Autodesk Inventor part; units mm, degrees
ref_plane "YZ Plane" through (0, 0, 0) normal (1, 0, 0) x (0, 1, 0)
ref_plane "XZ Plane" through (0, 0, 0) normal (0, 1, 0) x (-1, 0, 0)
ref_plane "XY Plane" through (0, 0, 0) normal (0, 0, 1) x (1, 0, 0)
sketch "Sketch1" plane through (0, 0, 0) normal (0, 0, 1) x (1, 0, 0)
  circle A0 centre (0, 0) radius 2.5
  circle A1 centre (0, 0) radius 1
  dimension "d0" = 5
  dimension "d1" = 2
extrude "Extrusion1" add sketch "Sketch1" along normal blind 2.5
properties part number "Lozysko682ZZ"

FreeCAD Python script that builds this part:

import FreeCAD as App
import Part
import Sketcher
from FreeCAD import Vector
Q = App.Units.Quantity

doc = App.newDocument("Part")
body = doc.addObject("PartDesign::Body", "Body")

# Sketch on XY plane
sketch1 = body.newObject("Sketcher::SketchObject", "Sketch")
sketch1.AttachmentSupport = (doc.getObject("XY_Plane"), [""])
sketch1.MapMode = "FlatFace"
sketch1.addGeometry(Part.Circle(Vector(0, 0, 0), Vector(0, 0, 1), 2.5), False)
sketch1.addGeometry(Part.Circle(Vector(0, 0, 0), Vector(0, 0, 1), 1), False)
sketch1.addConstraint(Sketcher.Constraint("Coincident", 0, 3, -1, 1))
sketch1.addConstraint(Sketcher.Constraint("Coincident", 1, 3, -1, 1))
sketch1.addConstraint(Sketcher.Constraint("Diameter", 0, Q("5 mm")))
sketch1.addConstraint(Sketcher.Constraint("Diameter", 1, Q("2 mm")))
pad1 = body.newObject("PartDesign::Pad", "Pad")
pad1.Profile = sketch1
pad1.Length = 2.5

doc.recompute()
